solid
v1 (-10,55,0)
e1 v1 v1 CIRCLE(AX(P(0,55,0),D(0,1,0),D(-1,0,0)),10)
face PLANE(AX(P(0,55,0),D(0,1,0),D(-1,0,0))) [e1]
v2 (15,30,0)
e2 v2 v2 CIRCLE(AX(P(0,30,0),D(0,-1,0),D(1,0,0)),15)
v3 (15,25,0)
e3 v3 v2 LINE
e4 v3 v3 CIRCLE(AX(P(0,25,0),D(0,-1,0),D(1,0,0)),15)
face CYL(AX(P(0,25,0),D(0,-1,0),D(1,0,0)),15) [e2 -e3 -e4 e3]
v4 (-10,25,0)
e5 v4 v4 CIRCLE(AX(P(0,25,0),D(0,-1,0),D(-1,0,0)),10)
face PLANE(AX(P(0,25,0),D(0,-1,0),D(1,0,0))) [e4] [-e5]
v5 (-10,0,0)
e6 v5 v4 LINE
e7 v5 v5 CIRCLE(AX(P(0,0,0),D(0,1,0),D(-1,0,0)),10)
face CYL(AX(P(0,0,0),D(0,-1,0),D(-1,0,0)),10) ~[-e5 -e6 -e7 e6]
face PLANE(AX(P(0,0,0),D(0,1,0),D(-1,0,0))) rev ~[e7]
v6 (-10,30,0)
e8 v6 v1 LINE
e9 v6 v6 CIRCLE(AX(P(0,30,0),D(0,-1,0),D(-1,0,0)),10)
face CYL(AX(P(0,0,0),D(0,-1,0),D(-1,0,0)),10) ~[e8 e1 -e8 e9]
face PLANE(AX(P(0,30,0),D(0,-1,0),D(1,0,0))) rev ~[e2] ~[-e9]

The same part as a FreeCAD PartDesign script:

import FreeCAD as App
import Part
import Sketcher

V = App.Vector
Q = App.Units.Quantity

doc = App.newDocument("Part")
body = doc.addObject("PartDesign::Body", "Body")

# Sketch on XZ plane
sketch1 = doc.addObject("Sketcher::SketchObject", "Sketch")
body.addObject(sketch1)
sketch1.AttachmentSupport = (doc.XZ_Plane, [""])
sketch1.MapMode = "FlatFace"
sketch1.addGeometry(Part.Circle(V(0, 0, 0), V(0, 0, 1), 10), False)
sketch1.addConstraint([
    Sketcher.Constraint("Coincident", 0, 3, -1, 1),
    Sketcher.Constraint("Diameter", 0, Q("20 mm")),
])
pad1 = doc.addObject("PartDesign::Pad", "Pad")
body.addObject(pad1)
pad1.Profile = sketch1
pad1.Length = 55
pad1.Reversed = True

# Sketch on XZ plane
sketch2 = doc.addObject("Sketcher::SketchObject", "Sketch001")
body.addObject(sketch2)
sketch2.AttachmentSupport = (doc.XZ_Plane, [""])
sketch2.MapMode = "FlatFace"
sketch2.AttachmentOffset = App.Placement(V(0, 0, -25), App.Rotation())
sketch2.addGeometry([
    Part.Circle(V(0, 0, 0), V(0, 0, 1), 15),
    Part.Circle(V(0, 0, 0), V(0, 0, 1), 10),
], False)
sketch2.addConstraint([
    Sketcher.Constraint("Coincident", 0, 3, -1, 1),
    Sketcher.Constraint("Coincident", 1, 3, -1, 1),
    Sketcher.Constraint("Diameter", 0, Q("30 mm")),
    Sketcher.Constraint("Diameter", 1, Q("20 mm")),
])
pad2 = doc.addObject("PartDesign::Pad", "Pad001")
body.addObject(pad2)
pad2.Profile = sketch2
pad2.Length = 5
pad2.Reversed = True

doc.recompute()
